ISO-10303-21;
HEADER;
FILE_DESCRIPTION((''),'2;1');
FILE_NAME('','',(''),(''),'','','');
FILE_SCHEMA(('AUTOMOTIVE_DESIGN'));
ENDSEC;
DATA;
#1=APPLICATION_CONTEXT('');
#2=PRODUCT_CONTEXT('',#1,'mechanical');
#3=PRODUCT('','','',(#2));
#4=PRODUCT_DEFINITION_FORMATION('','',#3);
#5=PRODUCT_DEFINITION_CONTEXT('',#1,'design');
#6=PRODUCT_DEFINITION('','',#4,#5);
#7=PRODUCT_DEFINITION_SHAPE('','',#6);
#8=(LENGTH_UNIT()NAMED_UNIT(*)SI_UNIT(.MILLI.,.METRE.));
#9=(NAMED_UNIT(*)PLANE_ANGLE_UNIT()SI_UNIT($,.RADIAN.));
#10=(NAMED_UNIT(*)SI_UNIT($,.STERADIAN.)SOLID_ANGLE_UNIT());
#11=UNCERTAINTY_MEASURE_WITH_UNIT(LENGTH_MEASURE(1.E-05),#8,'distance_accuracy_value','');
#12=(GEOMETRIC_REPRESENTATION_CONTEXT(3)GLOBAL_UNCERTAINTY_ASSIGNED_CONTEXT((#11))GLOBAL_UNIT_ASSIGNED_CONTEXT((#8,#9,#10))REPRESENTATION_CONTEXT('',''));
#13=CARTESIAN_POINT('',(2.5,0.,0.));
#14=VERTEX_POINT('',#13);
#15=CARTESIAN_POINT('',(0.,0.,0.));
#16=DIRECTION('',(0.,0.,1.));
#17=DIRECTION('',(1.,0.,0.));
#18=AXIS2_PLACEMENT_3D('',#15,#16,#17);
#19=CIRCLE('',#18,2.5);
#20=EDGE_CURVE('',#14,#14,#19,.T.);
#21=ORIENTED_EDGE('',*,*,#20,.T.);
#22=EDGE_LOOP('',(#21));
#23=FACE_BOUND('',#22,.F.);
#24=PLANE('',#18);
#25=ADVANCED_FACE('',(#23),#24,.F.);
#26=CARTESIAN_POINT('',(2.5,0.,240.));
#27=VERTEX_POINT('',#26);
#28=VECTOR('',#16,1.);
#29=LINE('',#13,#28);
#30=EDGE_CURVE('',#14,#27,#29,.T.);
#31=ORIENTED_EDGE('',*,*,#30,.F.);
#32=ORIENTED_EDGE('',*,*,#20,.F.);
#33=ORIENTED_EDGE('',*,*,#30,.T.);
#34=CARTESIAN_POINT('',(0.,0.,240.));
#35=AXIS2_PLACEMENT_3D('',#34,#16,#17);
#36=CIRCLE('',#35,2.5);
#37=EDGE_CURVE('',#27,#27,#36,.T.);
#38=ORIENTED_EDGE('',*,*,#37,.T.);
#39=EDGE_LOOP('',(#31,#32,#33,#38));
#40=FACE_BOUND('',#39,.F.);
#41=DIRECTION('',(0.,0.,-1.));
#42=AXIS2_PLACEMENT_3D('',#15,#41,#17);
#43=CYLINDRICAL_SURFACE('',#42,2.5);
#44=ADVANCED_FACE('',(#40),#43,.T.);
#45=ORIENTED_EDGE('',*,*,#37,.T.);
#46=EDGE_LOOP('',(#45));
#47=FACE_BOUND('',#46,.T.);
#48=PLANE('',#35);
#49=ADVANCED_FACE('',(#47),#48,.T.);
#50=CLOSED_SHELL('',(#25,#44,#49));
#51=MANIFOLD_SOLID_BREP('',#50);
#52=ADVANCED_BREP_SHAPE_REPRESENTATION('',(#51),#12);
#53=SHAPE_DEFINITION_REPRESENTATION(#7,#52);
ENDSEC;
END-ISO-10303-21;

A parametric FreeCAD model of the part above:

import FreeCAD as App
import Part
import Sketcher
from FreeCAD import Vector

doc = App.newDocument("Part")
params = doc.addObject("Spreadsheet::Sheet", "Params")
for row, (alias, value) in enumerate([
    ("sketch1_diameter", "5 mm"),
    ("pad1_length", "240 mm"),
], start=1):
    params.set(f"A{row}", alias)
    params.set(f"B{row}", "=" + value)
    params.setAlias(f"B{row}", alias)

body = doc.addObject("PartDesign::Body", "Body")

# Sketch on XY plane
sketch1 = body.newObject("Sketcher::SketchObject", "Sketch")
sketch1.AttachmentSupport = (doc.getObject("XY_Plane"), [""])
sketch1.MapMode = "FlatFace"
sketch1.addGeometry(Part.Circle(Vector(0, 0, 0), Vector(0, 0, 1), 2.5), False)
sketch1.addConstraint([
    Sketcher.Constraint("Coincident", 0, 3, -1, 1),
    Sketcher.Constraint("Diameter", 0, 5.0),
])
sketch1.setExpression("Constraints[1]", "Params.sketch1_diameter")
pad1 = body.newObject("PartDesign::Pad", "Pad")
pad1.Profile = sketch1
pad1.setExpression("Length", "Params.pad1_length")

doc.recompute()
